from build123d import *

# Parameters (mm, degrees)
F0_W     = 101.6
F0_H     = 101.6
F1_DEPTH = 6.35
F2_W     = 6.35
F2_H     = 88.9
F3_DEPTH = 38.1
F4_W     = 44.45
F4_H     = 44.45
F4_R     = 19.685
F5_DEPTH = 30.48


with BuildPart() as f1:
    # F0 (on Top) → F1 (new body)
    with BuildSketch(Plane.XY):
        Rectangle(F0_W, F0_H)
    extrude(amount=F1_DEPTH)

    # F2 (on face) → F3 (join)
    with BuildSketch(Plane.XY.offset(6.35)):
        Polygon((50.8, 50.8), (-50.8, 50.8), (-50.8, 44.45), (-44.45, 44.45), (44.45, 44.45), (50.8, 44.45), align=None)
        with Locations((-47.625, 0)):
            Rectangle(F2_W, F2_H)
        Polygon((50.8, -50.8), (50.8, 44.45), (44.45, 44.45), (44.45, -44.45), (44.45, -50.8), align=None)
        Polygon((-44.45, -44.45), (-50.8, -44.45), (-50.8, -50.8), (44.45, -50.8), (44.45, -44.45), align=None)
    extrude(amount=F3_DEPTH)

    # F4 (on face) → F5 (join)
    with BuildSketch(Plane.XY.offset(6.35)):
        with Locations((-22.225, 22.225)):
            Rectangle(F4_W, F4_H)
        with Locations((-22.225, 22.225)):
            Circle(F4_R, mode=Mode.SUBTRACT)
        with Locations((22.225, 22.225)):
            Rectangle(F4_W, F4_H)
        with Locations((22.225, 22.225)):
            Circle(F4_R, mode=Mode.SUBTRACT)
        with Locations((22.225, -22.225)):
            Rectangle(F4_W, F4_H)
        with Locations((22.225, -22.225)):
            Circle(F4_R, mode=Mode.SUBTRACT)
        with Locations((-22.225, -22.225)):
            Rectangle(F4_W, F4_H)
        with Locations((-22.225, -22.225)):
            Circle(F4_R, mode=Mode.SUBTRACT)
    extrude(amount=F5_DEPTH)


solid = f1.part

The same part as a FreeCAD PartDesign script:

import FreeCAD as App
import Part
import Sketcher

V = App.Vector
Q = App.Units.Quantity

doc = App.newDocument("Part")
body = doc.addObject("PartDesign::Body", "Body")

# Sketch on XY plane
sketch1 = body.newObject("Sketcher::SketchObject", "Sketch")
sketch1.AttachmentSupport = (doc.getObject("XY_Plane"), [""])
sketch1.MapMode = "FlatFace"
sketch1.addGeometry([
    Part.LineSegment(V(-51, 51, 0), V(-51, -51, 0)),
    Part.LineSegment(V(-51, -51, 0), V(51, -51, 0)),
    Part.LineSegment(V(51, -51, 0), V(51, 51, 0)),
    Part.LineSegment(V(51, 51, 0), V(-51, 51, 0)),
], False)
sketch1.addConstraint([
    Sketcher.Constraint("Coincident", 0, 2, 1, 1),
    Sketcher.Constraint("Coincident", 1, 2, 2, 1),
    Sketcher.Constraint("Coincident", 2, 2, 3, 1),
    Sketcher.Constraint("Coincident", 3, 2, 0, 1),
    Sketcher.Constraint("Vertical", 0),
    Sketcher.Constraint("Horizontal", 1),
    Sketcher.Constraint("Vertical", 2),
    Sketcher.Constraint("Horizontal", 3),
    Sketcher.Constraint("Symmetric", 0, 2, 2, 2, -1, 1),
    Sketcher.Constraint("Equal", 3, 0),
    Sketcher.Constraint("DistanceX", 1, 1, 1, 2, Q("4 in")),
])
pad1 = body.newObject("PartDesign::Pad", "Pad")
pad1.Profile = sketch1
pad1.Length = Q("0.25 in")

# Sketch on XY plane
sketch2 = body.newObject("Sketcher::SketchObject", "Sketch001")
sketch2.AttachmentSupport = (doc.getObject("XY_Plane"), [""])
sketch2.MapMode = "FlatFace"
sketch2.AttachmentOffset = App.Placement(V(0, 0, 0.25 * 25.4), App.Rotation())
sketch2.addGeometry([
    Part.LineSegment(V(51, 51, 0), V(-51, 51, 0)),  # 0
    Part.LineSegment(V(-51, 51, 0), V(-51, -51, 0)),  # 1
    Part.LineSegment(V(-51, -51, 0), V(51, -51, 0)),  # 2
    Part.LineSegment(V(51, -51, 0), V(51, 51, 0)),  # 3
    Part.LineSegment(V(-44, -44, 0), V(-44, 44, 0)),  # 4
    Part.LineSegment(V(-44, 44, 0), V(44, 44, 0)),  # 5
    Part.LineSegment(V(44, 44, 0), V(44, -44, 0)),  # 6
    Part.LineSegment(V(44, -44, 0), V(-44, -44, 0)),  # 7
], False)
sketch2.addConstraint([
    Sketcher.Constraint("Coincident", 0, 2, 1, 1),
    Sketcher.Constraint("Coincident", 1, 2, 2, 1),
    Sketcher.Constraint("Coincident", 2, 2, 3, 1),
    Sketcher.Constraint("Coincident", 3, 2, 0, 1),
    Sketcher.Constraint("Coincident", 4, 2, 5, 1),
    Sketcher.Constraint("Coincident", 5, 2, 6, 1),
    Sketcher.Constraint("Coincident", 6, 2, 7, 1),
    Sketcher.Constraint("Coincident", 7, 2, 4, 1),
    Sketcher.Constraint("Horizontal", 0),
    Sketcher.Constraint("Vertical", 1),
    Sketcher.Constraint("Horizontal", 2),
    Sketcher.Constraint("Vertical", 3),
    Sketcher.Constraint("Vertical", 4),
    Sketcher.Constraint("Horizontal", 5),
    Sketcher.Constraint("Vertical", 6),
    Sketcher.Constraint("Horizontal", 7),
    Sketcher.Constraint("Symmetric", 0, 2, 2, 2, -1, 1),
    Sketcher.Constraint("Symmetric", 4, 2, 6, 2, -1, 1),
    Sketcher.Constraint("Equal", 2, 1),
    Sketcher.Constraint("Equal", 7, 4),
    Sketcher.Constraint("DistanceX", 0, 2, 0, 1, Q("4 in")),
    Sketcher.Constraint("DistanceX", 5, 1, 5, 2, Q("3.5 in")),
])
pad2 = body.newObject("PartDesign::Pad", "Pad001")
pad2.Profile = sketch2
pad2.Length = Q("1.5 in")

# Sketch on XY plane
sketch3 = body.newObject("Sketcher::SketchObject", "Sketch002")
sketch3.AttachmentSupport = (doc.getObject("XY_Plane"), [""])
sketch3.MapMode = "FlatFace"
sketch3.AttachmentOffset = App.Placement(V(0, 0, 0.25 * 25.4), App.Rotation())
sketch3.addGeometry([
    Part.LineSegment(V(-44, 44, 0), V(-44, -44, 0)),  # 0
    Part.LineSegment(V(-44, -44, 0), V(44, -44, 0)),  # 1
    Part.LineSegment(V(44, -44, 0), V(44, 44, 0)),  # 2
    Part.LineSegment(V(44, 44, 0), V(-44, 44, 0)),  # 3
    Part.Circle(V(-22, -22, 0), V(0, 0, 1), 20),  # 4
    Part.Circle(V(22, -22, 0), V(0, 0, 1), 20),  # 5
    Part.Circle(V(-22, 22, 0), V(0, 0, 1), 20),  # 6
    Part.Circle(V(22, 22, 0), V(0, 0, 1), 20),  # 7
], False)
sketch3.addConstraint([
    Sketcher.Constraint("Coincident", 0, 2, 1, 1),
    Sketcher.Constraint("Coincident", 1, 2, 2, 1),
    Sketcher.Constraint("Coincident", 2, 2, 3, 1),
    Sketcher.Constraint("Coincident", 3, 2, 0, 1),
    Sketcher.Constraint("Vertical", 0),
    Sketcher.Constraint("Horizontal", 1),
    Sketcher.Constraint("Vertical", 2),
    Sketcher.Constraint("Horizontal", 3),
    Sketcher.Constraint("Equal", 4, 5),
    Sketcher.Constraint("Equal", 5, 6),
    Sketcher.Constraint("Equal", 6, 7),
    Sketcher.Constraint("Symmetric", 5, 3, 6, 3, -1, 1),
    Sketcher.Constraint("Symmetric", 4, 3, 7, 3, -1, 1),
    Sketcher.Constraint("Symmetric", 0, 2, 2, 2, -1, 1),
    Sketcher.Constraint("Symmetric", 4, 3, 5, 3, -2),
    Sketcher.Constraint("Equal", 3, 0),
    Sketcher.Constraint("Diameter", 4, Q("1.55 in")),
    Sketcher.Constraint("DistanceX", 1, 1, 1, 2, Q("3.5 in")),
    Sketcher.Constraint("DistanceX", 4, 3, 5, 3, Q("1.75 in")),
    Sketcher.Constraint("DistanceY", 4, 3, 6, 3, Q("1.75 in")),
])
pad3 = body.newObject("PartDesign::Pad", "Pad002")
pad3.Profile = sketch3
pad3.Length = Q("1.2 in")

doc.recompute()
